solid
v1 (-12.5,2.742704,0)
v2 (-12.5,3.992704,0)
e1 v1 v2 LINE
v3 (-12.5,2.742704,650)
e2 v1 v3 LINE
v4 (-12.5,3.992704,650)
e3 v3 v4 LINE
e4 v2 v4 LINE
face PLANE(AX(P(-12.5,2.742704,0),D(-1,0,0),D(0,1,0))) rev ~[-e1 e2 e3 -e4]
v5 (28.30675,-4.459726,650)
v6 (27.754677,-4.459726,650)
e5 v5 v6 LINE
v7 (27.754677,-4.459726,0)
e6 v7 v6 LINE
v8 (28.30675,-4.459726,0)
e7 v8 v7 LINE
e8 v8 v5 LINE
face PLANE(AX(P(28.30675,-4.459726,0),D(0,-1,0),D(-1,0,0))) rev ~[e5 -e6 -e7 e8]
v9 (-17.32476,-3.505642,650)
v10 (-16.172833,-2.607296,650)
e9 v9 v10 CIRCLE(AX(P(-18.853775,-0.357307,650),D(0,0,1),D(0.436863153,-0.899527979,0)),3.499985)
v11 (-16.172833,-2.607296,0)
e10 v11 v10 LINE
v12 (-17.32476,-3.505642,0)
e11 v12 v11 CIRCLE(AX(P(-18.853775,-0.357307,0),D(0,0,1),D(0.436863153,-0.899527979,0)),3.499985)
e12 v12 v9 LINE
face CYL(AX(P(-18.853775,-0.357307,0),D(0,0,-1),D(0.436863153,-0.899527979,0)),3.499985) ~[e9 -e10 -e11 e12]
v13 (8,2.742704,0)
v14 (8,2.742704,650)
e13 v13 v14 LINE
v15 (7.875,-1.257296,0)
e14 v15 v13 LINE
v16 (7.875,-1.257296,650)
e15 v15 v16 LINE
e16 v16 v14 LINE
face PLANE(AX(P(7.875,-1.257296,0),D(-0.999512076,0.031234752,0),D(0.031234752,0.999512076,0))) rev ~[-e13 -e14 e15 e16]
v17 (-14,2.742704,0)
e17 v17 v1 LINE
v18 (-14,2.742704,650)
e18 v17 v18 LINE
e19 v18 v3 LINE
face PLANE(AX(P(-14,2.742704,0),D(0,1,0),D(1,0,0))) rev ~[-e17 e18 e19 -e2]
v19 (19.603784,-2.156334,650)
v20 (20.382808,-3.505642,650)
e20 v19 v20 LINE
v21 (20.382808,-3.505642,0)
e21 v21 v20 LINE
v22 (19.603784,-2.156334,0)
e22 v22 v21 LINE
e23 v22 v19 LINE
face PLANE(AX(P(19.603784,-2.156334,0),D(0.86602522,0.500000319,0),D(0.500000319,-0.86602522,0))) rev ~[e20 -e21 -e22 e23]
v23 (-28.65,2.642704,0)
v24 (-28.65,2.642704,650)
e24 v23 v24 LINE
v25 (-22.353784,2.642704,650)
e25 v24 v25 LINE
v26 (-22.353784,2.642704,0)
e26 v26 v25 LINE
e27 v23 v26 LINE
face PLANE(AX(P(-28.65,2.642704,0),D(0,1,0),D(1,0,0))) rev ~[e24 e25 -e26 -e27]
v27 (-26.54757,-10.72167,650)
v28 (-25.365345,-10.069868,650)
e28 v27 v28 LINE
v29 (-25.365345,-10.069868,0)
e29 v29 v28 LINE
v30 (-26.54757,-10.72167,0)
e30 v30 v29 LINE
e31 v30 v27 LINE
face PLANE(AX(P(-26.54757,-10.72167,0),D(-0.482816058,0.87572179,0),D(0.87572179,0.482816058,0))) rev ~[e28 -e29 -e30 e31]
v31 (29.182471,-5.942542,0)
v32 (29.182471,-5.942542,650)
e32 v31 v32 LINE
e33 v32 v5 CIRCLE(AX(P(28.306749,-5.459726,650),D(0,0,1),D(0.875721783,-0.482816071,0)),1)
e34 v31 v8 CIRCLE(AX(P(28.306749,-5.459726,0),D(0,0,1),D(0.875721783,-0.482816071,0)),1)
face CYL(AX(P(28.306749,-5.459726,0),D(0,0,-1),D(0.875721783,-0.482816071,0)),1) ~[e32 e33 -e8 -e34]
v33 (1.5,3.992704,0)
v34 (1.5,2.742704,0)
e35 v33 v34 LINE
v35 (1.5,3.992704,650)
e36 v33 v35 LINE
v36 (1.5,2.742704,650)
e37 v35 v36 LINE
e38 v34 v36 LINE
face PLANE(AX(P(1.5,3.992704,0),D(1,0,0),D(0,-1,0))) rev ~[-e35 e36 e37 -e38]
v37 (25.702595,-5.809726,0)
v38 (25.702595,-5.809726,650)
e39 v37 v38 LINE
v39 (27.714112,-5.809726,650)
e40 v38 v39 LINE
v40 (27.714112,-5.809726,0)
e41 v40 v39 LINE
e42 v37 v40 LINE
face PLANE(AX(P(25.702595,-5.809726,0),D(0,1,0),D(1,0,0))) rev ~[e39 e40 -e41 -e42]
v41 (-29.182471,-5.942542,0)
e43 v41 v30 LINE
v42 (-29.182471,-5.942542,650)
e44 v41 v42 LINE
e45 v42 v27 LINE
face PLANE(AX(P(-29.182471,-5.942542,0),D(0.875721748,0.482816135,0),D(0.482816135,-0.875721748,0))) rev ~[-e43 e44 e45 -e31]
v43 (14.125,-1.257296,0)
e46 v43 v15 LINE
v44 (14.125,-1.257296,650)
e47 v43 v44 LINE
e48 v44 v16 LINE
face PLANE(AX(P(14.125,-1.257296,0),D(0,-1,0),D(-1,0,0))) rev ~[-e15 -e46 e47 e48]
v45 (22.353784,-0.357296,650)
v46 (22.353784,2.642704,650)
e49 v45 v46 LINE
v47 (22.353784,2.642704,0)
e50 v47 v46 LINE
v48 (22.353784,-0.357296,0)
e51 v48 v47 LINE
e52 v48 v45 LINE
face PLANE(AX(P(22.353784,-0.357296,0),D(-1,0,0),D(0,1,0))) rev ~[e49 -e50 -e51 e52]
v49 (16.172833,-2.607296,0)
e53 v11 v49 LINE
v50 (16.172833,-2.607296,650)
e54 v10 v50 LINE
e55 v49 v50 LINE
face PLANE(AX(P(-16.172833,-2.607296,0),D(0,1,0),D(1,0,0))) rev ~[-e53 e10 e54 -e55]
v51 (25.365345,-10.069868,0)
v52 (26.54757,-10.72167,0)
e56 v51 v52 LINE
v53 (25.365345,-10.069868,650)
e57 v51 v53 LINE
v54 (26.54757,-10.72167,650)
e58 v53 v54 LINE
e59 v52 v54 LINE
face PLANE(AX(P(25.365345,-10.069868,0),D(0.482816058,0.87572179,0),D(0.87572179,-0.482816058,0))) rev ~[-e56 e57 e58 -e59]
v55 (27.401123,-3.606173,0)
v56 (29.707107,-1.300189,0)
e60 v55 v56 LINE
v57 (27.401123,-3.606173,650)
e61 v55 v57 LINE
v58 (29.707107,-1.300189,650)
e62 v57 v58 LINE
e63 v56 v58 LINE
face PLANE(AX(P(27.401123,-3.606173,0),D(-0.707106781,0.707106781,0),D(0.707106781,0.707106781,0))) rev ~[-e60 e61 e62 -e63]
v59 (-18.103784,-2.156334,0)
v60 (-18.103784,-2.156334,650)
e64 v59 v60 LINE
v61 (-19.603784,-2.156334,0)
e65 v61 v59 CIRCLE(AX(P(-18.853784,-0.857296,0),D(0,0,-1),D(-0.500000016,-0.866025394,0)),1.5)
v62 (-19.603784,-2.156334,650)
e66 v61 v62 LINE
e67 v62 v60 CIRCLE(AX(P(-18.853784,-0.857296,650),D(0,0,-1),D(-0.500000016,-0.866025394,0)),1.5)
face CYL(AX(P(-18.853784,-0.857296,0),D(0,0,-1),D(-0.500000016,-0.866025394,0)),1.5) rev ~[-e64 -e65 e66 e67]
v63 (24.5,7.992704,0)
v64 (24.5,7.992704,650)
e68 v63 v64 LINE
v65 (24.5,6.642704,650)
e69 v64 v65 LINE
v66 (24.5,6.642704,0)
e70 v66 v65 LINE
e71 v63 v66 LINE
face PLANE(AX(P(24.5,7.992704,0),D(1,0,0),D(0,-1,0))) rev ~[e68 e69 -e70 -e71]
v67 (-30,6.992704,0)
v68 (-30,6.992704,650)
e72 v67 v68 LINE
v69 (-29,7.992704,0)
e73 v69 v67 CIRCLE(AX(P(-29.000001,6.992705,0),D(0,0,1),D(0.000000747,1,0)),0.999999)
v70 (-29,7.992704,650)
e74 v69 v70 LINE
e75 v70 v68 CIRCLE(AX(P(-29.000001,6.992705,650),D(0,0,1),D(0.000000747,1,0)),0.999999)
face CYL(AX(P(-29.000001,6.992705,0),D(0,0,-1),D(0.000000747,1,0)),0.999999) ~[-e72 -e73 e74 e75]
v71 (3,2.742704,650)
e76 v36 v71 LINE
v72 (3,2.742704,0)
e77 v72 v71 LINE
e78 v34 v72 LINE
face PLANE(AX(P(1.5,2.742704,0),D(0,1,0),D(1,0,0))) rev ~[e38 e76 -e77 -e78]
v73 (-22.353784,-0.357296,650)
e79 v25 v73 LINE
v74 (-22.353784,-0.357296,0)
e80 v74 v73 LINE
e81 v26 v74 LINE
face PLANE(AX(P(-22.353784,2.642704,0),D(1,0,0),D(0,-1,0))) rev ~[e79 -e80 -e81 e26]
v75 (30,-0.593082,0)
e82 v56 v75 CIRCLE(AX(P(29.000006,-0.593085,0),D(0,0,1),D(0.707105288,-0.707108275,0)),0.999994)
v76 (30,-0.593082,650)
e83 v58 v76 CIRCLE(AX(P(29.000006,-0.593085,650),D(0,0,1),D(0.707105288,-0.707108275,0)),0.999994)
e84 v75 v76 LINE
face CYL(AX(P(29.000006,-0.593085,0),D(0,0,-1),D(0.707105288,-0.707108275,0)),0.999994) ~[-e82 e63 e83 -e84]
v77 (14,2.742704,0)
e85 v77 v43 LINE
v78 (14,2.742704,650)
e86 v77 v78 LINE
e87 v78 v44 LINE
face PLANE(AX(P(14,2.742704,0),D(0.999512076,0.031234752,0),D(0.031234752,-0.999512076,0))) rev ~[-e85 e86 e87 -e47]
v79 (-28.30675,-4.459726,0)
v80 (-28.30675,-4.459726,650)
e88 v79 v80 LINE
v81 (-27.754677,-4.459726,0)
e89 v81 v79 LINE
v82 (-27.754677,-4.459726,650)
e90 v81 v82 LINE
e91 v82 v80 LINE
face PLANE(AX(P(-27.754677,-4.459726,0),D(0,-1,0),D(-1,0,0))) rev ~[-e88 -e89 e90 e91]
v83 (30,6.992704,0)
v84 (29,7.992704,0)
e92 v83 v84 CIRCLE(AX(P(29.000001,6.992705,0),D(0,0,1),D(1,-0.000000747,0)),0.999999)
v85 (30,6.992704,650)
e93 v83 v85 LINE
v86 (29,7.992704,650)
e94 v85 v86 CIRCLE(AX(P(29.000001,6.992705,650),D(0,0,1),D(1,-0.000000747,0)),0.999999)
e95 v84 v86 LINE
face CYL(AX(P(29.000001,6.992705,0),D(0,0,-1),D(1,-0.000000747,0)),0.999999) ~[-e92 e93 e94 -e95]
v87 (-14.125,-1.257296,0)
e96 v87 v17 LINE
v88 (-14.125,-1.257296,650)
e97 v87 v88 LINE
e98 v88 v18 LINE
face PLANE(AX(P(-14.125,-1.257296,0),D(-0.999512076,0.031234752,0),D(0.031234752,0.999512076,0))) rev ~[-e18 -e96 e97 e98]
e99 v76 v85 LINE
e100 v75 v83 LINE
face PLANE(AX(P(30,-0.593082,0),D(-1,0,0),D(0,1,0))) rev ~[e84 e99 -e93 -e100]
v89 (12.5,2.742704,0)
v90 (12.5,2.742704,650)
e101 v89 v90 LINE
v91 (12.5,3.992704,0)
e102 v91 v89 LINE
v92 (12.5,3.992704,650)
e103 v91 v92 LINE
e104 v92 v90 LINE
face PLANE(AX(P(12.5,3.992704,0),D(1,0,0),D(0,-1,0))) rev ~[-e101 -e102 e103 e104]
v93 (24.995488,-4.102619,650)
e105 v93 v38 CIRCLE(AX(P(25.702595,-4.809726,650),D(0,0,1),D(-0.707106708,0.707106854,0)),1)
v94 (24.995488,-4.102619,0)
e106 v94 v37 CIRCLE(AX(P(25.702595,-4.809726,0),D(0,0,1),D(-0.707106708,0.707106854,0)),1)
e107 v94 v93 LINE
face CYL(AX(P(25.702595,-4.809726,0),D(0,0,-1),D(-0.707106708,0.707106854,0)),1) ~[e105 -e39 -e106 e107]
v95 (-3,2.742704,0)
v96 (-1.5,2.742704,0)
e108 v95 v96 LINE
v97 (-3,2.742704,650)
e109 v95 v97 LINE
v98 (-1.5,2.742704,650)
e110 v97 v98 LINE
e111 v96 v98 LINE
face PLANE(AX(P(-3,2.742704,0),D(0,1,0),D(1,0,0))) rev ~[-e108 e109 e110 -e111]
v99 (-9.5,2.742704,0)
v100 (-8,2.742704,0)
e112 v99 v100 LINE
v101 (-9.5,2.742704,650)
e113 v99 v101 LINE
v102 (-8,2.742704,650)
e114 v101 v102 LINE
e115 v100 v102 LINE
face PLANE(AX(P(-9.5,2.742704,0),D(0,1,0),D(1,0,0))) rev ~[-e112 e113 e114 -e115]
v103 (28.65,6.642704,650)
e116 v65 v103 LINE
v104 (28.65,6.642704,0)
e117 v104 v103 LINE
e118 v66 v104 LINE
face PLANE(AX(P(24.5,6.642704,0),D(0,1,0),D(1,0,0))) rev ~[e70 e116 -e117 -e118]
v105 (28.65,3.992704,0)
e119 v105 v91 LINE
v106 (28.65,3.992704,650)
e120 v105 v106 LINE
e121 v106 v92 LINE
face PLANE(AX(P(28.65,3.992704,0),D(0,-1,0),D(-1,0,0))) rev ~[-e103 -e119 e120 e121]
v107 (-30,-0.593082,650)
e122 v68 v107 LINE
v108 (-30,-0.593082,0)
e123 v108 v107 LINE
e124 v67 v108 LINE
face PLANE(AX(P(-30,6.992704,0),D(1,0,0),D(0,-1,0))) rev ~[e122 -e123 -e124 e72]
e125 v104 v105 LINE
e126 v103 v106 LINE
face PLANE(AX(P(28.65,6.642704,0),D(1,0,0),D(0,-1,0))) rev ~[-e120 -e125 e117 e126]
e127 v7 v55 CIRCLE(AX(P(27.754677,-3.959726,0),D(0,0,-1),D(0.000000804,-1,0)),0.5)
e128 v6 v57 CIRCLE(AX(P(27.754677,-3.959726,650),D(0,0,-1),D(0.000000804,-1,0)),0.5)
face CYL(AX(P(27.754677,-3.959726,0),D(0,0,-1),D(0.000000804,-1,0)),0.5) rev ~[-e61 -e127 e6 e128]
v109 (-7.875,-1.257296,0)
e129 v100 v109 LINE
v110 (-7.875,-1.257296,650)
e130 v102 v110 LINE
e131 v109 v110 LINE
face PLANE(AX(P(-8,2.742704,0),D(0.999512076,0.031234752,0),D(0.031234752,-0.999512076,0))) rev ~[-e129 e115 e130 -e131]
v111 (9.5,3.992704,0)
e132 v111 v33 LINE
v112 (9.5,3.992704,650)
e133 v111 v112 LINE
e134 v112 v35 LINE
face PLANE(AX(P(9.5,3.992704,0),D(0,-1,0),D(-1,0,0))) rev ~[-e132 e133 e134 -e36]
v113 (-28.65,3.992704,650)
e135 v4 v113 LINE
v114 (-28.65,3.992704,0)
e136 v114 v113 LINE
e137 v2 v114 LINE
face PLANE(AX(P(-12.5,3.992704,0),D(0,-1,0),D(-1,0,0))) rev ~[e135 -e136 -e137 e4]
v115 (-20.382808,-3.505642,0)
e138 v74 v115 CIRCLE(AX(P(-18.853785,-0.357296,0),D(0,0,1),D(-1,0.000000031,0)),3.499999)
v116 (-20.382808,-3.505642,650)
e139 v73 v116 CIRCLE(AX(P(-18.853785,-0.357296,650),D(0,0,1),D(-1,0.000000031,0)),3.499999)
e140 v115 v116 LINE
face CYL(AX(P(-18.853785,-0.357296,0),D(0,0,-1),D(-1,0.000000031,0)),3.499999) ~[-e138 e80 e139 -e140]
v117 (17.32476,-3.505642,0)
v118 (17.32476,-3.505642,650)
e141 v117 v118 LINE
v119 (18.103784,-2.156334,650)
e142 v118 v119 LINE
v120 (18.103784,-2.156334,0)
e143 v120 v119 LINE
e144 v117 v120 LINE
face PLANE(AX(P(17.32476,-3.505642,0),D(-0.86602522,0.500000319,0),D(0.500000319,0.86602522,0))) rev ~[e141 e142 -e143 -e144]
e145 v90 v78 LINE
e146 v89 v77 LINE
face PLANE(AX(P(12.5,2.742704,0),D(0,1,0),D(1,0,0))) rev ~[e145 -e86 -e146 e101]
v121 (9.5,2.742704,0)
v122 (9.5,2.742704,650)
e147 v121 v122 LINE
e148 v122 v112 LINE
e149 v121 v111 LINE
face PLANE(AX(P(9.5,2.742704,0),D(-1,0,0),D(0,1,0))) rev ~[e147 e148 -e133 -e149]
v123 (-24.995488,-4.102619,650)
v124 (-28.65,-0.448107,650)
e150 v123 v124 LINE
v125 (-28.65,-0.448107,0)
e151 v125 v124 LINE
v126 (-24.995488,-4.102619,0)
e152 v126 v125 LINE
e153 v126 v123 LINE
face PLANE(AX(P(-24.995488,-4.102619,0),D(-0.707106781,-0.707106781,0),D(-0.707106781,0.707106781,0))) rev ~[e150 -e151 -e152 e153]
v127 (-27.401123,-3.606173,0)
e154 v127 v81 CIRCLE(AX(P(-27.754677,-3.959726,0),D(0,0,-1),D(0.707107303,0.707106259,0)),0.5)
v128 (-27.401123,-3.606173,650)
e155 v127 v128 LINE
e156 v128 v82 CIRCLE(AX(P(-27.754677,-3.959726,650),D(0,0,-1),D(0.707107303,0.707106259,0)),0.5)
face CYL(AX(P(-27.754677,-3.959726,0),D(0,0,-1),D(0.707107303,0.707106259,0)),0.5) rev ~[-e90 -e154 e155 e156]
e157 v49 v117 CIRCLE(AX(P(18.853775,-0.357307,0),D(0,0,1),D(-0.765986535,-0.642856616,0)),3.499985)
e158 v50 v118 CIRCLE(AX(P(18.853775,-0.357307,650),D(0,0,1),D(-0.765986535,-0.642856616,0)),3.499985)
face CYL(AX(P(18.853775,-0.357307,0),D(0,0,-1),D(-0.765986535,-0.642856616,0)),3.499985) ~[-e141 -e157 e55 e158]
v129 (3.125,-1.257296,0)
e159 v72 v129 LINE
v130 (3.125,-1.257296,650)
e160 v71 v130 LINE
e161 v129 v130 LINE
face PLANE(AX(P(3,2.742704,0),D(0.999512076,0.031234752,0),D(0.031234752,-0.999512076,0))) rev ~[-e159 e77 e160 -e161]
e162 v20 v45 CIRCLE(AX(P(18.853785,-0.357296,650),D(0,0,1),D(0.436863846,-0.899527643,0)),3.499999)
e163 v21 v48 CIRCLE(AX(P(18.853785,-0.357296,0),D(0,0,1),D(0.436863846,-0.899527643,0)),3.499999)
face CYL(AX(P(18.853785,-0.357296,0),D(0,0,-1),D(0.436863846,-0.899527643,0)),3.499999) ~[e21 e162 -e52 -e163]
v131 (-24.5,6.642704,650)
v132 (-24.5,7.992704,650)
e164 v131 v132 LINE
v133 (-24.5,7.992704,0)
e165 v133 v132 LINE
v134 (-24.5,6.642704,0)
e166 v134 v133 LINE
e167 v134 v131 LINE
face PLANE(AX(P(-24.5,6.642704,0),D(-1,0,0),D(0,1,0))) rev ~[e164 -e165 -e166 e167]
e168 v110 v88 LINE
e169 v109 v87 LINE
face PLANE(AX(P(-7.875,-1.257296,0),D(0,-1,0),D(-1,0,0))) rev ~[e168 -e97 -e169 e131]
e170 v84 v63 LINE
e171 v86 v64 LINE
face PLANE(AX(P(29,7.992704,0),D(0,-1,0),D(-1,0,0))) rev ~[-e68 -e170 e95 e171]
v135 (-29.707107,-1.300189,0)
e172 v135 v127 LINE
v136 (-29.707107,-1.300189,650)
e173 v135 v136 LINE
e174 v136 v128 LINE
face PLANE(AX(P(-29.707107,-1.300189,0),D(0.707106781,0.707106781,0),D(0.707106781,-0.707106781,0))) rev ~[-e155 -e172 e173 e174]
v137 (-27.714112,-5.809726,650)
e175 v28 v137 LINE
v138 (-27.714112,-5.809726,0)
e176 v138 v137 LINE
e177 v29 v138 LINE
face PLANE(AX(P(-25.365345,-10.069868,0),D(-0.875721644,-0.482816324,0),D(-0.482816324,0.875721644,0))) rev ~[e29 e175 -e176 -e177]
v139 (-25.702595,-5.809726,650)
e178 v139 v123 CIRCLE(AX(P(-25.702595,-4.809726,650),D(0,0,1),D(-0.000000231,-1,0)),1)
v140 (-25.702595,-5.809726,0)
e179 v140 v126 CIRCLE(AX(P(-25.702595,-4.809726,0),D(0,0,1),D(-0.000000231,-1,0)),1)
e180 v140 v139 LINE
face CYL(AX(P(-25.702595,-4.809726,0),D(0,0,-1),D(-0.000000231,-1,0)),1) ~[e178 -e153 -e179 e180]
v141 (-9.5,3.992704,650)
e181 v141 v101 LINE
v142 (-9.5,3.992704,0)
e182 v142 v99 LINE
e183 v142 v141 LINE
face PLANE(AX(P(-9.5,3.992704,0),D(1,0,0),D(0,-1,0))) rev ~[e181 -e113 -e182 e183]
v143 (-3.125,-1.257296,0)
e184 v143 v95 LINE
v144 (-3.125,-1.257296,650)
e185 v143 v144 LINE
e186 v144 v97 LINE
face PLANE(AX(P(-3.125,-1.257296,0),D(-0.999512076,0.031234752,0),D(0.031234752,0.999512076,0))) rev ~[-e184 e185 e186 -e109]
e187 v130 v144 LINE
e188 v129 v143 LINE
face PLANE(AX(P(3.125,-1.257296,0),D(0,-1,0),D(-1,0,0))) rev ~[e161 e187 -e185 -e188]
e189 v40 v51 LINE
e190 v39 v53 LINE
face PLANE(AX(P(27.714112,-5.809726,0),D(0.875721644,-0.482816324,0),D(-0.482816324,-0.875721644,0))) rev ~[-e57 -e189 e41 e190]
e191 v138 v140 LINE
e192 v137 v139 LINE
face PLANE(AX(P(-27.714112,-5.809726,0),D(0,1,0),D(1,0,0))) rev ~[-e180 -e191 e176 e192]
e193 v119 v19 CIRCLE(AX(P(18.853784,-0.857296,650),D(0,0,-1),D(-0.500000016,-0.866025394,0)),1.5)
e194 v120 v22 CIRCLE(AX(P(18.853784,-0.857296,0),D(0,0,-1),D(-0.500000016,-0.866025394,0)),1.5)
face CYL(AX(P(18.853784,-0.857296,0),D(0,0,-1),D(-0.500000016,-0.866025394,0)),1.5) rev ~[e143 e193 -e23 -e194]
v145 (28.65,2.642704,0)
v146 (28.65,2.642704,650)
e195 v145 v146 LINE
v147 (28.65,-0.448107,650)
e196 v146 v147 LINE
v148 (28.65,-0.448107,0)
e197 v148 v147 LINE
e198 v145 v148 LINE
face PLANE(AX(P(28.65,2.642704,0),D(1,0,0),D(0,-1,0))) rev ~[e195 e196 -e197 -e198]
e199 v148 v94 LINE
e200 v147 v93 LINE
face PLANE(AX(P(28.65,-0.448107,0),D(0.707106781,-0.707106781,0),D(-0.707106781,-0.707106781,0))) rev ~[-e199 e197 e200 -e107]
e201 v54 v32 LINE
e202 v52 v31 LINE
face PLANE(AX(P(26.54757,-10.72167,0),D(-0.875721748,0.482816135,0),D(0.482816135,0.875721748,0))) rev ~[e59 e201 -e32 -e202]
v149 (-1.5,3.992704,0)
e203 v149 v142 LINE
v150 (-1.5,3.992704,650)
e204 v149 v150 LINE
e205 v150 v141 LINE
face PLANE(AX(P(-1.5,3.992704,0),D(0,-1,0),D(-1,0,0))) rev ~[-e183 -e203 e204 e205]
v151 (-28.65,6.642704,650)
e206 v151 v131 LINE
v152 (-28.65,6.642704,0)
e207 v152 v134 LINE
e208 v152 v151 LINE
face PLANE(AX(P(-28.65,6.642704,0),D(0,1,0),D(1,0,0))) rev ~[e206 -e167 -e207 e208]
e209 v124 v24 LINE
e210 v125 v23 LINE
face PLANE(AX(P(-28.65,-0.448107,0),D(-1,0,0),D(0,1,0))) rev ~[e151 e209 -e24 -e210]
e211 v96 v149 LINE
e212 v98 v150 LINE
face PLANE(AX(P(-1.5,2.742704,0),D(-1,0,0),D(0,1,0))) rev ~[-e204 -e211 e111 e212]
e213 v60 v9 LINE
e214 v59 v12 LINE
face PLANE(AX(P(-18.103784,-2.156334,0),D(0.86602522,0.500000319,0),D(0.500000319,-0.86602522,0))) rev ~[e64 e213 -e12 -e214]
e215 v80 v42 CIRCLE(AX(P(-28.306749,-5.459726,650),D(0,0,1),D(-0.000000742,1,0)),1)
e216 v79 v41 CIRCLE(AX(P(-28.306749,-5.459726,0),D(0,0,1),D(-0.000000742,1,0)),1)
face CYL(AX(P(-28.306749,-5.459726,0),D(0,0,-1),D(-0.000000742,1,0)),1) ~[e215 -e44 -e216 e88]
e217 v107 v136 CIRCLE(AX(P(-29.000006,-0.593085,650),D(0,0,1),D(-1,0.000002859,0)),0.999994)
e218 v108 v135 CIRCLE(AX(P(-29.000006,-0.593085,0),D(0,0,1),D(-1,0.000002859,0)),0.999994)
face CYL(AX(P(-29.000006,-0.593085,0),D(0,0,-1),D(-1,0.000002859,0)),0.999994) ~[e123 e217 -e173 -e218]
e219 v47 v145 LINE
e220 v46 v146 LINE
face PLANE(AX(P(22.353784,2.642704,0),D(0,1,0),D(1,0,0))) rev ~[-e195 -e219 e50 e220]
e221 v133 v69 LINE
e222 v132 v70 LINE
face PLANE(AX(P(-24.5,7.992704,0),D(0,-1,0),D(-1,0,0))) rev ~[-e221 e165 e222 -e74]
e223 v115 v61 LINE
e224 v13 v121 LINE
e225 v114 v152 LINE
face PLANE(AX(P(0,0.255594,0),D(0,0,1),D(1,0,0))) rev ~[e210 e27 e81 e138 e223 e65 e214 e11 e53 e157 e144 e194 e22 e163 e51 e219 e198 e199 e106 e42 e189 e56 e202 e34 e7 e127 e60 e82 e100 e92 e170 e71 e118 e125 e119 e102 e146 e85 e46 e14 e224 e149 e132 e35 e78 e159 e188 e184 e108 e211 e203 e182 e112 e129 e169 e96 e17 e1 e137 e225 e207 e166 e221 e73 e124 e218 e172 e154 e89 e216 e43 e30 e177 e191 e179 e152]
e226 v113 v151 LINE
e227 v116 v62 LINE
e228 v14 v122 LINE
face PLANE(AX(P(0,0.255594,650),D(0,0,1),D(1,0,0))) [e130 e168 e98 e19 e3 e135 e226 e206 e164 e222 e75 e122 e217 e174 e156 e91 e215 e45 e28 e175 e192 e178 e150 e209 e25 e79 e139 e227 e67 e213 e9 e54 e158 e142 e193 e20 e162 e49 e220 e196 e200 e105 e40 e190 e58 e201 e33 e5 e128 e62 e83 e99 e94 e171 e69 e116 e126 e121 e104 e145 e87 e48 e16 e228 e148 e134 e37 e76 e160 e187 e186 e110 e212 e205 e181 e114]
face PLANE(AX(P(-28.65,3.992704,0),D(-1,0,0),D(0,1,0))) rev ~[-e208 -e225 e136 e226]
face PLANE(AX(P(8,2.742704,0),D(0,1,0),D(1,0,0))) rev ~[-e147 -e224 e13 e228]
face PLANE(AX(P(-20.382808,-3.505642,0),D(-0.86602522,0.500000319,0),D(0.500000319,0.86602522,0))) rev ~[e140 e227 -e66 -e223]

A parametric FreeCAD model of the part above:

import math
import FreeCAD as App
import Part
import Sketcher

doc = App.newDocument("Part")
params = doc.addObject("Spreadsheet::Sheet", "Params")
for row, (alias, value) in enumerate([
    ("sketch1_radius", "1 mm"),
    ("sketch1_radius2", "1 mm"),
    ("sketch1_radius3", "0.999999 mm"),
    ("sketch1_radius4", "0.999999 mm"),
    ("sketch1_radius5", "1 mm"),
    ("pad1_length", "650 mm"),
], start=1):
    params.set(f"A{row}", alias)
    params.set(f"B{row}", "=" + value)
    params.setAlias(f"B{row}", alias)

body = doc.addObject("PartDesign::Body", "Body")

# Sketch on XY plane
sketch1 = doc.addObject("Sketcher::SketchObject", "Sketch")
body.addObject(sketch1)
sketch1.AttachmentSupport = (doc.XY_Plane, [""])
sketch1.MapMode = "FlatFace"
sketch1.addGeometry(Part.LineSegment(App.Vector(-16.172833, -2.607296, 0), App.Vector(16.172833, -2.607296, 0)), False)
sketch1.addGeometry(Part.ArcOfCircle(Part.Circle(App.Vector(18.853775, -0.357307, 0), App.Vector(0, 0, 1), 3.499985), math.radians(-139.994839), math.radians(-115.903909)), False)
sketch1.addGeometry(Part.LineSegment(App.Vector(17.32476, -3.505642, 0), App.Vector(18.103784, -2.156334, 0)), False)
sketch1.addGeometry(Part.ArcOfCircle(Part.Circle(App.Vector(18.853784, -0.857296, 0), App.Vector(0, 0, 1), 1.5), math.radians(-59.999999), math.radians(239.999999)), False)
sketch1.addGeometry(Part.LineSegment(App.Vector(19.603784, -2.156334, 0), App.Vector(20.382808, -3.505642, 0)), False)
sketch1.addGeometry(Part.ArcOfCircle(Part.Circle(App.Vector(18.853785, -0.357296, 0), App.Vector(0, 0, 1), 3.499999), math.radians(-64.096047), math.radians(0.000002)), False)
sketch1.addGeometry(Part.LineSegment(App.Vector(22.353784, -0.357296, 0), App.Vector(22.353784, 2.642704, 0)), False)
sketch1.addGeometry(Part.LineSegment(App.Vector(22.353784, 2.642704, 0), App.Vector(28.65, 2.642704, 0)), False)
sketch1.addGeometry(Part.LineSegment(App.Vector(28.65, 2.642704, 0), App.Vector(28.65, -0.448107, 0)), False)
sketch1.addGeometry(Part.LineSegment(App.Vector(28.65, -0.448107, 0), App.Vector(24.995488, -4.102619, 0)), False)
sketch1.addGeometry(Part.ArcOfCircle(Part.Circle(App.Vector(25.702595, -4.809726, 0), App.Vector(0, 0, 1), 1), math.radians(134.999994), math.radians(270.000013)), False)
sketch1.addGeometry(Part.LineSegment(App.Vector(25.702595, -5.809726, 0), App.Vector(27.714112, -5.809726, 0)), False)
sketch1.addGeometry(Part.LineSegment(App.Vector(27.714112, -5.809726, 0), App.Vector(25.365345, -10.069868, 0)), False)
sketch1.addGeometry(Part.LineSegment(App.Vector(25.365345, -10.069868, 0), App.Vector(26.54757, -10.72167, 0)), False)
sketch1.addGeometry(Part.LineSegment(App.Vector(26.54757, -10.72167, 0), App.Vector(29.182471, -5.942542, 0)), False)
sketch1.addGeometry(Part.ArcOfCircle(Part.Circle(App.Vector(28.306749, -5.459726, 0), App.Vector(0, 0, 1), 1), math.radians(-28.869486), math.radians(89.999957)), False)
sketch1.addGeometry(Part.LineSegment(App.Vector(28.30675, -4.459726, 0), App.Vector(27.754677, -4.459726, 0)), False)
sketch1.addGeometry(Part.ArcOfCircle(Part.Circle(App.Vector(27.754677, -3.959726, 0), App.Vector(0, 0, 1), 0.5), math.radians(135.000042), math.radians(270.000046)), False)
sketch1.addGeometry(Part.LineSegment(App.Vector(27.401123, -3.606173, 0), App.Vector(29.707107, -1.300189, 0)), False)
sketch1.addGeometry(Part.ArcOfCircle(Part.Circle(App.Vector(29.000006, -0.593085, 0), App.Vector(0, 0, 1), 0.999994), math.radians(-45.000121), math.radians(0.000164)), False)
sketch1.addGeometry(Part.LineSegment(App.Vector(30, -0.593082, 0), App.Vector(30, 6.992704, 0)), False)
sketch1.addGeometry(Part.ArcOfCircle(Part.Circle(App.Vector(29.000001, 6.992705, 0), App.Vector(0, 0, 1), 0.999999), math.radians(-0.000043), math.radians(90.000043)), False)
sketch1.addGeometry(Part.LineSegment(App.Vector(29, 7.992704, 0), App.Vector(24.5, 7.992704, 0)), False)
sketch1.addGeometry(Part.LineSegment(App.Vector(24.5, 7.992704, 0), App.Vector(24.5, 6.642704, 0)), False)
sketch1.addGeometry(Part.LineSegment(App.Vector(24.5, 6.642704, 0), App.Vector(28.65, 6.642704, 0)), False)
sketch1.addGeometry(Part.LineSegment(App.Vector(28.65, 6.642704, 0), App.Vector(28.65, 3.992704, 0)), False)
sketch1.addGeometry(Part.LineSegment(App.Vector(28.65, 3.992704, 0), App.Vector(12.5, 3.992704, 0)), False)
sketch1.addGeometry(Part.LineSegment(App.Vector(12.5, 3.992704, 0), App.Vector(12.5, 2.742704, 0)), False)
sketch1.addGeometry(Part.LineSegment(App.Vector(12.5, 2.742704, 0), App.Vector(14, 2.742704, 0)), False)
sketch1.addGeometry(Part.LineSegment(App.Vector(14, 2.742704, 0), App.Vector(14.125, -1.257296, 0)), False)
sketch1.addGeometry(Part.LineSegment(App.Vector(14.125, -1.257296, 0), App.Vector(7.875, -1.257296, 0)), False)
sketch1.addGeometry(Part.LineSegment(App.Vector(7.875, -1.257296, 0), App.Vector(8, 2.742704, 0)), False)
sketch1.addGeometry(Part.LineSegment(App.Vector(8, 2.742704, 0), App.Vector(9.5, 2.742704, 0)), False)
sketch1.addGeometry(Part.LineSegment(App.Vector(9.5, 2.742704, 0), App.Vector(9.5, 3.992704, 0)), False)
sketch1.addGeometry(Part.LineSegment(App.Vector(9.5, 3.992704, 0), App.Vector(1.5, 3.992704, 0)), False)
sketch1.addGeometry(Part.LineSegment(App.Vector(1.5, 3.992704, 0), App.Vector(1.5, 2.742704, 0)), False)
sketch1.addGeometry(Part.LineSegment(App.Vector(1.5, 2.742704, 0), App.Vector(3, 2.742704, 0)), False)
sketch1.addGeometry(Part.LineSegment(App.Vector(3, 2.742704, 0), App.Vector(3.125, -1.257296, 0)), False)
sketch1.addGeometry(Part.LineSegment(App.Vector(3.125, -1.257296, 0), App.Vector(-3.125, -1.257296, 0)), False)
sketch1.addGeometry(Part.LineSegment(App.Vector(-3.125, -1.257296, 0), App.Vector(-3, 2.742704, 0)), False)
sketch1.addGeometry(Part.LineSegment(App.Vector(-3, 2.742704, 0), App.Vector(-1.5, 2.742704, 0)), False)
sketch1.addGeometry(Part.LineSegment(App.Vector(-1.5, 2.742704, 0), App.Vector(-1.5, 3.992704, 0)), False)
sketch1.addGeometry(Part.LineSegment(App.Vector(-1.5, 3.992704, 0), App.Vector(-9.5, 3.992704, 0)), False)
sketch1.addGeometry(Part.LineSegment(App.Vector(-9.5, 3.992704, 0), App.Vector(-9.5, 2.742704, 0)), False)
sketch1.addGeometry(Part.LineSegment(App.Vector(-9.5, 2.742704, 0), App.Vector(-8, 2.742704, 0)), False)
sketch1.addGeometry(Part.LineSegment(App.Vector(-8, 2.742704, 0), App.Vector(-7.875, -1.257296, 0)), False)
sketch1.addGeometry(Part.LineSegment(App.Vector(-7.875, -1.257296, 0), App.Vector(-14.125, -1.257296, 0)), False)
sketch1.addGeometry(Part.LineSegment(App.Vector(-14.125, -1.257296, 0), App.Vector(-14, 2.742704, 0)), False)
sketch1.addGeometry(Part.LineSegment(App.Vector(-14, 2.742704, 0), App.Vector(-12.5, 2.742704, 0)), False)
sketch1.addGeometry(Part.LineSegment(App.Vector(-12.5, 2.742704, 0), App.Vector(-12.5, 3.992704, 0)), False)
sketch1.addGeometry(Part.LineSegment(App.Vector(-12.5, 3.992704, 0), App.Vector(-28.65, 3.992704, 0)), False)
sketch1.addGeometry(Part.LineSegment(App.Vector(-28.65, 3.992704, 0), App.Vector(-28.65, 6.642704, 0)), False)
sketch1.addGeometry(Part.LineSegment(App.Vector(-28.65, 6.642704, 0), App.Vector(-24.5, 6.642704, 0)), False)
sketch1.addGeometry(Part.LineSegment(App.Vector(-24.5, 6.642704, 0), App.Vector(-24.5, 7.992704, 0)), False)
sketch1.addGeometry(Part.LineSegment(App.Vector(-24.5, 7.992704, 0), App.Vector(-29, 7.992704, 0)), False)
sketch1.addGeometry(Part.ArcOfCircle(Part.Circle(App.Vector(-29.000001, 6.992705, 0), App.Vector(0, 0, 1), 0.999999), math.radians(89.999957), math.radians(180.000043)), False)
sketch1.addGeometry(Part.LineSegment(App.Vector(-30, 6.992704, 0), App.Vector(-30, -0.593082, 0)), False)
sketch1.addGeometry(Part.ArcOfCircle(Part.Circle(App.Vector(-29.000006, -0.593085, 0), App.Vector(0, 0, 1), 0.999994), math.radians(179.999836), math.radians(225.000121)), False)
sketch1.addGeometry(Part.LineSegment(App.Vector(-29.707107, -1.300189, 0), App.Vector(-27.401123, -3.606173, 0)), False)
sketch1.addGeometry(Part.ArcOfCircle(Part.Circle(App.Vector(-27.754677, -3.959726, 0), App.Vector(0, 0, 1), 0.5), math.radians(-90.000046), math.radians(44.999958)), False)
sketch1.addGeometry(Part.LineSegment(App.Vector(-27.754677, -4.459726, 0), App.Vector(-28.30675, -4.459726, 0)), False)
sketch1.addGeometry(Part.ArcOfCircle(Part.Circle(App.Vector(-28.306749, -5.459726, 0), App.Vector(0, 0, 1), 1), math.radians(90.000043), math.radians(208.869486)), False)
sketch1.addGeometry(Part.LineSegment(App.Vector(-29.182471, -5.942542, 0), App.Vector(-26.54757, -10.72167, 0)), False)
sketch1.addGeometry(Part.LineSegment(App.Vector(-26.54757, -10.72167, 0), App.Vector(-25.365345, -10.069868, 0)), False)
sketch1.addGeometry(Part.LineSegment(App.Vector(-25.365345, -10.069868, 0), App.Vector(-27.714112, -5.809726, 0)), False)
sketch1.addGeometry(Part.LineSegment(App.Vector(-27.714112, -5.809726, 0), App.Vector(-25.702595, -5.809726, 0)), False)
sketch1.addGeometry(Part.ArcOfCircle(Part.Circle(App.Vector(-25.702595, -4.809726, 0), App.Vector(0, 0, 1), 1), math.radians(-90.000013), math.radians(45.000006)), False)
sketch1.addGeometry(Part.LineSegment(App.Vector(-24.995488, -4.102619, 0), App.Vector(-28.65, -0.448107, 0)), False)
sketch1.addGeometry(Part.LineSegment(App.Vector(-28.65, -0.448107, 0), App.Vector(-28.65, 2.642704, 0)), False)
sketch1.addGeometry(Part.LineSegment(App.Vector(-28.65, 2.642704, 0), App.Vector(-22.353784, 2.642704, 0)), False)
sketch1.addGeometry(Part.LineSegment(App.Vector(-22.353784, 2.642704, 0), App.Vector(-22.353784, -0.357296, 0)), False)
sketch1.addGeometry(Part.ArcOfCircle(Part.Circle(App.Vector(-18.853785, -0.357296, 0), App.Vector(0, 0, 1), 3.499999), math.radians(179.999998), math.radians(244.096047)), False)
sketch1.addGeometry(Part.LineSegment(App.Vector(-20.382808, -3.505642, 0), App.Vector(-19.603784, -2.156334, 0)), False)
sketch1.addGeometry(Part.ArcOfCircle(Part.Circle(App.Vector(-18.853784, -0.857296, 0), App.Vector(0, 0, 1), 1.5), math.radians(-59.999999), math.radians(239.999999)), False)
sketch1.addGeometry(Part.LineSegment(App.Vector(-18.103784, -2.156334, 0), App.Vector(-17.32476, -3.505642, 0)), False)
sketch1.addGeometry(Part.ArcOfCircle(Part.Circle(App.Vector(-18.853775, -0.357307, 0), App.Vector(0, 0, 1), 3.499985), math.radians(-64.096091), math.radians(-40.005161)), False)
sketch1.addConstraint(Sketcher.Constraint("Coincident", 0, 2, 1, 1))
sketch1.addConstraint(Sketcher.Constraint("Coincident", 1, 2, 2, 1))
sketch1.addConstraint(Sketcher.Constraint("Coincident", 2, 2, 3, 2))
sketch1.addConstraint(Sketcher.Constraint("Coincident", 3, 1, 4, 1))
sketch1.addConstraint(Sketcher.Constraint("Coincident", 4, 2, 5, 1))
sketch1.addConstraint(Sketcher.Constraint("Coincident", 5, 2, 6, 1))
sketch1.addConstraint(Sketcher.Constraint("Coincident", 6, 2, 7, 1))
sketch1.addConstraint(Sketcher.Constraint("Coincident", 7, 2, 8, 1))
sketch1.addConstraint(Sketcher.Constraint("Coincident", 8, 2, 9, 1))
sketch1.addConstraint(Sketcher.Constraint("Coincident", 9, 2, 10, 1))
sketch1.addConstraint(Sketcher.Constraint("Coincident", 10, 2, 11, 1))
sketch1.addConstraint(Sketcher.Constraint("Coincident", 11, 2, 12, 1))
sketch1.addConstraint(Sketcher.Constraint("Coincident", 12, 2, 13, 1))
sketch1.addConstraint(Sketcher.Constraint("Coincident", 13, 2, 14, 1))
sketch1.addConstraint(Sketcher.Constraint("Coincident", 14, 2, 15, 1))
sketch1.addConstraint(Sketcher.Constraint("Coincident", 15, 2, 16, 1))
sketch1.addConstraint(Sketcher.Constraint("Coincident", 16, 2, 17, 2))
sketch1.addConstraint(Sketcher.Constraint("Coincident", 17, 1, 18, 1))
sketch1.addConstraint(Sketcher.Constraint("Coincident", 18, 2, 19, 1))
sketch1.addConstraint(Sketcher.Constraint("Coincident", 19, 2, 20, 1))
sketch1.addConstraint(Sketcher.Constraint("Coincident", 20, 2, 21, 1))
sketch1.addConstraint(Sketcher.Constraint("Coincident", 21, 2, 22, 1))
sketch1.addConstraint(Sketcher.Constraint("Coincident", 22, 2, 23, 1))
sketch1.addConstraint(Sketcher.Constraint("Coincident", 23, 2, 24, 1))
sketch1.addConstraint(Sketcher.Constraint("Coincident", 24, 2, 25, 1))
sketch1.addConstraint(Sketcher.Constraint("Coincident", 25, 2, 26, 1))
sketch1.addConstraint(Sketcher.Constraint("Coincident", 26, 2, 27, 1))
sketch1.addConstraint(Sketcher.Constraint("Coincident", 27, 2, 28, 1))
sketch1.addConstraint(Sketcher.Constraint("Coincident", 28, 2, 29, 1))
sketch1.addConstraint(Sketcher.Constraint("Coincident", 29, 2, 30, 1))
sketch1.addConstraint(Sketcher.Constraint("Coincident", 30, 2, 31, 1))
sketch1.addConstraint(Sketcher.Constraint("Coincident", 31, 2, 32, 1))
sketch1.addConstraint(Sketcher.Constraint("Coincident", 32, 2, 33, 1))
sketch1.addConstraint(Sketcher.Constraint("Coincident", 33, 2, 34, 1))
sketch1.addConstraint(Sketcher.Constraint("Coincident", 34, 2, 35, 1))
sketch1.addConstraint(Sketcher.Constraint("Coincident", 35, 2, 36, 1))
sketch1.addConstraint(Sketcher.Constraint("Coincident", 36, 2, 37, 1))
sketch1.addConstraint(Sketcher.Constraint("Coincident", 37, 2, 38, 1))
sketch1.addConstraint(Sketcher.Constraint("Coincident", 38, 2, 39, 1))
sketch1.addConstraint(Sketcher.Constraint("Coincident", 39, 2, 40, 1))
sketch1.addConstraint(Sketcher.Constraint("Coincident", 40, 2, 41, 1))
sketch1.addConstraint(Sketcher.Constraint("Coincident", 41, 2, 42, 1))
sketch1.addConstraint(Sketcher.Constraint("Coincident", 42, 2, 43, 1))
sketch1.addConstraint(Sketcher.Constraint("Coincident", 43, 2, 44, 1))
sketch1.addConstraint(Sketcher.Constraint("Coincident", 44, 2, 45, 1))
sketch1.addConstraint(Sketcher.Constraint("Coincident", 45, 2, 46, 1))
sketch1.addConstraint(Sketcher.Constraint("Coincident", 46, 2, 47, 1))
sketch1.addConstraint(Sketcher.Constraint("Coincident", 47, 2, 48, 1))
sketch1.addConstraint(Sketcher.Constraint("Coincident", 48, 2, 49, 1))
sketch1.addConstraint(Sketcher.Constraint("Coincident", 49, 2, 50, 1))
sketch1.addConstraint(Sketcher.Constraint("Coincident", 50, 2, 51, 1))
sketch1.addConstraint(Sketcher.Constraint("Coincident", 51, 2, 52, 1))
sketch1.addConstraint(Sketcher.Constraint("Coincident", 52, 2, 53, 1))
sketch1.addConstraint(Sketcher.Constraint("Coincident", 53, 2, 54, 1))
sketch1.addConstraint(Sketcher.Constraint("Coincident", 54, 2, 55, 1))
sketch1.addConstraint(Sketcher.Constraint("Coincident", 55, 2, 56, 1))
sketch1.addConstraint(Sketcher.Constraint("Coincident", 56, 2, 57, 1))
sketch1.addConstraint(Sketcher.Constraint("Coincident", 57, 2, 58, 1))
sketch1.addConstraint(Sketcher.Constraint("Coincident", 58, 2, 59, 2))
sketch1.addConstraint(Sketcher.Constraint("Coincident", 59, 1, 60, 1))
sketch1.addConstraint(Sketcher.Constraint("Coincident", 60, 2, 61, 1))
sketch1.addConstraint(Sketcher.Constraint("Coincident", 61, 2, 62, 1))
sketch1.addConstraint(Sketcher.Constraint("Coincident", 62, 2, 63, 1))
sketch1.addConstraint(Sketcher.Constraint("Coincident", 63, 2, 64, 1))
sketch1.addConstraint(Sketcher.Constraint("Coincident", 64, 2, 65, 1))
sketch1.addConstraint(Sketcher.Constraint("Coincident", 65, 2, 66, 1))
sketch1.addConstraint(Sketcher.Constraint("Coincident", 66, 2, 67, 1))
sketch1.addConstraint(Sketcher.Constraint("Coincident", 67, 2, 68, 1))
sketch1.addConstraint(Sketcher.Constraint("Coincident", 68, 2, 69, 1))
sketch1.addConstraint(Sketcher.Constraint("Coincident", 69, 2, 70, 1))
sketch1.addConstraint(Sketcher.Constraint("Coincident", 70, 2, 71, 1))
sketch1.addConstraint(Sketcher.Constraint("Coincident", 71, 2, 72, 1))
sketch1.addConstraint(Sketcher.Constraint("Coincident", 72, 2, 73, 2))
sketch1.addConstraint(Sketcher.Constraint("Coincident", 73, 1, 74, 1))
sketch1.addConstraint(Sketcher.Constraint("Coincident", 74, 2, 75, 1))
sketch1.addConstraint(Sketcher.Constraint("Coincident", 75, 2, 0, 1))
sketch1.addConstraint(Sketcher.Constraint("Horizontal", 0))
sketch1.addConstraint(Sketcher.Constraint("Vertical", 6))
sketch1.addConstraint(Sketcher.Constraint("Horizontal", 7))
sketch1.addConstraint(Sketcher.Constraint("Vertical", 8))
sketch1.addConstraint(Sketcher.Constraint("Horizontal", 11))
sketch1.addConstraint(Sketcher.Constraint("Horizontal", 16))
sketch1.addConstraint(Sketcher.Constraint("Vertical", 20))
sketch1.addConstraint(Sketcher.Constraint("Horizontal", 22))
sketch1.addConstraint(Sketcher.Constraint("Vertical", 23))
sketch1.addConstraint(Sketcher.Constraint("Horizontal", 24))
sketch1.addConstraint(Sketcher.Constraint("Vertical", 25))
sketch1.addConstraint(Sketcher.Constraint("Horizontal", 26))
sketch1.addConstraint(Sketcher.Constraint("Vertical", 27))
sketch1.addConstraint(Sketcher.Constraint("Horizontal", 28))
sketch1.addConstraint(Sketcher.Constraint("Horizontal", 30))
sketch1.addConstraint(Sketcher.Constraint("Horizontal", 32))
sketch1.addConstraint(Sketcher.Constraint("Vertical", 33))
sketch1.addConstraint(Sketcher.Constraint("Horizontal", 34))
sketch1.addConstraint(Sketcher.Constraint("Vertical", 35))
sketch1.addConstraint(Sketcher.Constraint("Horizontal", 36))
sketch1.addConstraint(Sketcher.Constraint("Horizontal", 38))
sketch1.addConstraint(Sketcher.Constraint("Horizontal", 40))
sketch1.addConstraint(Sketcher.Constraint("Vertical", 41))
sketch1.addConstraint(Sketcher.Constraint("Horizontal", 42))
sketch1.addConstraint(Sketcher.Constraint("Vertical", 43))
sketch1.addConstraint(Sketcher.Constraint("Horizontal", 44))
sketch1.addConstraint(Sketcher.Constraint("Horizontal", 46))
sketch1.addConstraint(Sketcher.Constraint("Horizontal", 48))
sketch1.addConstraint(Sketcher.Constraint("Vertical", 49))
sketch1.addConstraint(Sketcher.Constraint("Horizontal", 50))
sketch1.addConstraint(Sketcher.Constraint("Vertical", 51))
sketch1.addConstraint(Sketcher.Constraint("Horizontal", 52))
sketch1.addConstraint(Sketcher.Constraint("Vertical", 53))
sketch1.addConstraint(Sketcher.Constraint("Horizontal", 54))
sketch1.addConstraint(Sketcher.Constraint("Vertical", 56))
sketch1.addConstraint(Sketcher.Constraint("Horizontal", 60))
sketch1.addConstraint(Sketcher.Constraint("Horizontal", 65))
sketch1.addConstraint(Sketcher.Constraint("Vertical", 68))
sketch1.addConstraint(Sketcher.Constraint("Horizontal", 69))
sketch1.addConstraint(Sketcher.Constraint("Vertical", 70))
sketch1.addConstraint(Sketcher.Constraint("Radius", 10, 1.0))
sketch1.addConstraint(Sketcher.Constraint("Radius", 15, 1.0))
sketch1.addConstraint(Sketcher.Constraint("Radius", 21, 0.999999))
sketch1.addConstraint(Sketcher.Constraint("Radius", 55, 0.999999))
sketch1.addConstraint(Sketcher.Constraint("Radius", 61, 1.0))
sketch1.addConstraint(Sketcher.Constraint("Radius", 66, 1.0))
sketch1.addConstraint(Sketcher.Constraint("Radius", 3, 1.5))
sketch1.addConstraint(Sketcher.Constraint("Radius", 5, 3.499999))
sketch1.addConstraint(Sketcher.Constraint("Radius", 17, 0.5))
sketch1.addConstraint(Sketcher.Constraint("Radius", 59, 0.5))
sketch1.addConstraint(Sketcher.Constraint("Radius", 71, 3.499999))
sketch1.addConstraint(Sketcher.Constraint("Radius", 73, 1.5))
sketch1.addConstraint(Sketcher.Constraint("DistanceX", 34, 2, 34, 1, 8.0))
sketch1.addConstraint(Sketcher.Constraint("DistanceX", 42, 2, 42, 1, 8.0))
sketch1.addConstraint(Sketcher.Constraint("DistanceY", 6, 1, 6, 2, 3.0))
sketch1.addConstraint(Sketcher.Constraint("DistanceY", 70, 2, 70, 1, 3.0))
sketch1.addConstraint(Sketcher.Constraint("DistanceX", 22, 2, 22, 1, 4.5))
sketch1.addConstraint(Sketcher.Constraint("DistanceX", 28, 1, 28, 2, 1.5))
sketch1.addConstraint(Sketcher.Constraint("DistanceX", 32, 1, 32, 2, 1.5))
sketch1.addConstraint(Sketcher.Constraint("DistanceX", 36, 1, 36, 2, 1.5))
sketch1.addConstraint(Sketcher.Constraint("DistanceX", 40, 1, 40, 2, 1.5))
sketch1.addConstraint(Sketcher.Constraint("DistanceX", 44, 1, 44, 2, 1.5))
sketch1.addConstraint(Sketcher.Constraint("DistanceX", 48, 1, 48, 2, 1.5))
sketch1.addConstraint(Sketcher.Constraint("DistanceX", 54, 2, 54, 1, 4.5))
sketch1.addConstraint(Sketcher.Constraint("DistanceX", -1, 1, 21, 3, 29.000001))
sketch1.addConstraint(Sketcher.Constraint("DistanceX", 55, 3, -1, 1, 29.000001))
sketch1.addConstraint(Sketcher.Constraint("DistanceX", -1, 1, 21, 2, 29.0))
sketch1.addConstraint(Sketcher.Constraint("DistanceX", -1, 1, 28, 2, 14.0))
sketch1.addConstraint(Sketcher.Constraint("DistanceX", -1, 1, 31, 2, 8.0))
sketch1.addConstraint(Sketcher.Constraint("DistanceX", 39, 2, -1, 1, 3.0))
sketch1.addConstraint(Sketcher.Constraint("DistanceX", 47, 2, -1, 1, 14.0))
sketch1.addConstraint(Sketcher.Constraint("DistanceX", 54, 2, -1, 1, 29.0))
sketch1.addConstraint(Sketcher.Constraint("DistanceX", 24, 1, 24, 2, 4.15))
sketch1.addConstraint(Sketcher.Constraint("DistanceX", 30, 2, 30, 1, 6.25))
sketch1.addConstraint(Sketcher.Constraint("DistanceX", 38, 2, 38, 1, 6.25))
sketch1.addConstraint(Sketcher.Constraint("DistanceX", 46, 2, 46, 1, 6.25))
sketch1.addConstraint(Sketcher.Constraint("DistanceX", 50, 2, 50, 1, 16.15))
sketch1.addConstraint(Sketcher.Constraint("DistanceY", 23, 2, 23, 1, 1.35))
sketch1.addConstraint(Sketcher.Constraint("DistanceY", 25, 2, 25, 1, 2.65))
sketch1.addConstraint(Sketcher.Constraint("DistanceY", 27, 2, 27, 1, 1.25))
sketch1.addConstraint(Sketcher.Constraint("DistanceY", 33, 1, 33, 2, 1.25))
sketch1.addConstraint(Sketcher.Constraint("DistanceY", 35, 2, 35, 1, 1.25))
sketch1.addConstraint(Sketcher.Constraint("DistanceY", 41, 1, 41, 2, 1.25))
sketch1.addConstraint(Sketcher.Constraint("DistanceY", 43, 2, 43, 1, 1.25))
sketch1.addConstraint(Sketcher.Constraint("DistanceY", 49, 1, 49, 2, 1.25))
sketch1.addConstraint(Sketcher.Constraint("DistanceY", 51, 1, 51, 2, 2.65))
sketch1.addConstraint(Sketcher.Constraint("DistanceY", 53, 1, 53, 2, 1.35))
sketch1.addConstraint(Sketcher.Constraint("Distance", 13, 1.350001))
sketch1.addConstraint(Sketcher.Constraint("Distance", 63, 1.350001))
sketch1.addConstraint(Sketcher.Constraint("DistanceX", -1, 1, 7, 2, 28.65))
sketch1.addConstraint(Sketcher.Constraint("DistanceX", 67, 2, -1, 1, 28.65))
sketch1.addConstraint(Sketcher.Constraint("DistanceX", -1, 1, 29, 2, 14.125))
sketch1.addConstraint(Sketcher.Constraint("DistanceX", -1, 1, 37, 2, 3.125))
sketch1.addConstraint(Sketcher.Constraint("DistanceX", 45, 2, -1, 1, 7.875))
sketch1.addConstraint(Sketcher.Constraint("Radius", 1, 3.499985))
sketch1.addConstraint(Sketcher.Constraint("Radius", 19, 0.999994))
sketch1.addConstraint(Sketcher.Constraint("Radius", 57, 0.999994))
sketch1.addConstraint(Sketcher.Constraint("Radius", 75, 3.499985))
sketch1.addConstraint(Sketcher.Constraint("DistanceY", 8, 2, 8, 1, 3.090811))
sketch1.addConstraint(Sketcher.Constraint("DistanceY", 68, 1, 68, 2, 3.090811))
sketch1.addConstraint(Sketcher.Constraint("Distance", 9, 5.16826))
sketch1.addConstraint(Sketcher.Constraint("Distance", 12, 4.864722))
sketch1.addConstraint(Sketcher.Constraint("Distance", 14, 5.457359))
sketch1.addConstraint(Sketcher.Constraint("Distance", 62, 5.457359))
sketch1.addConstraint(Sketcher.Constraint("Distance", 64, 4.864722))
sketch1.addConstraint(Sketcher.Constraint("Distance", 67, 5.16826))
sketch1.addConstraint(Sketcher.Constraint("DistanceX", 0, 1, 0, 2, 32.345666))
sketch1.addConstraint(Sketcher.Constraint("DistanceX", 7, 1, 7, 2, 6.296216))
sketch1.addConstraint(Sketcher.Constraint("DistanceX", 11, 1, 11, 2, 2.011517))
sketch1.addConstraint(Sketcher.Constraint("DistanceX", 16, 2, 16, 1, 0.552073))
sketch1.addConstraint(Sketcher.Constraint("DistanceX", 60, 2, 60, 1, 0.552073))
sketch1.addConstraint(Sketcher.Constraint("DistanceX", 65, 1, 65, 2, 2.011517))
sketch1.addConstraint(Sketcher.Constraint("DistanceX", 69, 1, 69, 2, 6.296216))
sketch1.addConstraint(Sketcher.Constraint("DistanceY", 20, 1, 20, 2, 7.585786))
sketch1.addConstraint(Sketcher.Constraint("DistanceY", 56, 2, 56, 1, 7.585786))
sketch1.addConstraint(Sketcher.Constraint("DistanceX", -1, 1, 15, 3, 28.306749))
sketch1.addConstraint(Sketcher.Constraint("DistanceX", 61, 3, -1, 1, 28.306749))
sketch1.addConstraint(Sketcher.Constraint("DistanceX", -1, 1, 1, 2, 17.32476))
sketch1.addConstraint(Sketcher.Constraint("DistanceX", -1, 1, 4, 2, 20.382808))
sketch1.addConstraint(Sketcher.Constraint("DistanceY", 4, 2, -1, 1, 3.505642))
sketch1.addConstraint(Sketcher.Constraint("DistanceX", -1, 1, 9, 2, 24.995488))
sketch1.addConstraint(Sketcher.Constraint("DistanceY", 9, 2, -1, 1, 4.102619))
sketch1.addConstraint(Sketcher.Constraint("DistanceX", -1, 1, 11, 2, 27.714112))
sketch1.addConstraint(Sketcher.Constraint("DistanceX", -1, 1, 13, 2, 26.54757))
sketch1.addConstraint(Sketcher.Constraint("DistanceY", 13, 2, -1, 1, 10.72167))
sketch1.addConstraint(Sketcher.Constraint("DistanceX", -1, 1, 14, 2, 29.182471))
sketch1.addConstraint(Sketcher.Constraint("DistanceX", -1, 1, 15, 2, 28.30675))
sketch1.addConstraint(Sketcher.Constraint("DistanceY", 18, 2, -1, 1, 1.300189))
sketch1.addConstraint(Sketcher.Constraint("DistanceY", 19, 2, -1, 1, 0.593082))
sketch1.addConstraint(Sketcher.Constraint("DistanceY", 56, 2, -1, 1, 0.593082))
sketch1.addConstraint(Sketcher.Constraint("DistanceY", 57, 2, -1, 1, 1.300189))
sketch1.addConstraint(Sketcher.Constraint("DistanceX", 60, 2, -1, 1, 28.30675))
sketch1.addConstraint(Sketcher.Constraint("DistanceX", 61, 2, -1, 1, 29.182471))
sketch1.addConstraint(Sketcher.Constraint("DistanceY", 61, 2, -1, 1, 5.942542))
sketch1.addConstraint(Sketcher.Constraint("DistanceX", 62, 2, -1, 1, 26.54757))
sketch1.addConstraint(Sketcher.Constraint("DistanceX", 64, 2, -1, 1, 27.714112))
sketch1.addConstraint(Sketcher.Constraint("DistanceX", 66, 2, -1, 1, 24.995488))
sketch1.addConstraint(Sketcher.Constraint("DistanceY", 66, 2, -1, 1, 4.102619))
sketch1.addConstraint(Sketcher.Constraint("DistanceY", 71, 2, -1, 1, 3.505642))
sketch1.addConstraint(Sketcher.Constraint("DistanceX", 74, 2, -1, 1, 17.32476))
sketch1.addConstraint(Sketcher.Constraint("DistanceY", 74, 2, -1, 1, 3.505642))
sketch1.addConstraint(Sketcher.Constraint("Distance", 2, 1.558047))
sketch1.addConstraint(Sketcher.Constraint("Distance", 4, 1.558047))
sketch1.addConstraint(Sketcher.Constraint("Distance", 18, 3.261154))
sketch1.addConstraint(Sketcher.Constraint("Distance", 29, 4.001953))
sketch1.addConstraint(Sketcher.Constraint("Distance", 31, 4.001953))
sketch1.addConstraint(Sketcher.Constraint("Distance", 37, 4.001953))
sketch1.addConstraint(Sketcher.Constraint("Distance", 39, 4.001953))
sketch1.addConstraint(Sketcher.Constraint("Distance", 45, 4.001953))
sketch1.addConstraint(Sketcher.Constraint("Distance", 47, 4.001953))
sketch1.addConstraint(Sketcher.Constraint("Distance", 58, 3.261154))
sketch1.addConstraint(Sketcher.Constraint("Distance", 72, 1.558047))
sketch1.addConstraint(Sketcher.Constraint("Distance", 74, 1.558047))
sketch1.addConstraint(Sketcher.Constraint("DistanceX", -1, 1, 1, 3, 18.853775))
sketch1.addConstraint(Sketcher.Constraint("DistanceY", 1, 3, -1, 1, 0.357307))
sketch1.addConstraint(Sketcher.Constraint("DistanceX", -1, 1, 10, 3, 25.702595))
sketch1.addConstraint(Sketcher.Constraint("DistanceX", -1, 1, 17, 3, 27.754677))
sketch1.addConstraint(Sketcher.Constraint("DistanceY", 19, 3, -1, 1, 0.593085))
sketch1.addConstraint(Sketcher.Constraint("DistanceY", -1, 1, 21, 3, 6.992705))
sketch1.addConstraint(Sketcher.Constraint("DistanceY", 57, 3, -1, 1, 0.593085))
sketch1.addConstraint(Sketcher.Constraint("DistanceX", 59, 3, -1, 1, 27.754677))
sketch1.addConstraint(Sketcher.Constraint("DistanceX", 66, 3, -1, 1, 25.702595))
sketch1.addConstraint(Sketcher.Constraint("DistanceY", 71, 3, -1, 1, 0.357296))
sketch1.addConstraint(Sketcher.Constraint("DistanceX", 75, 3, -1, 1, 18.853775))
sketch1.addConstraint(Sketcher.Constraint("DistanceX", -1, 1, 2, 2, 18.103784))
sketch1.addConstraint(Sketcher.Constraint("DistanceX", -1, 1, 3, 1, 19.603784))
sketch1.addConstraint(Sketcher.Constraint("DistanceX", 72, 2, -1, 1, 19.603784))
sketch1.addConstraint(Sketcher.Constraint("DistanceX", 73, 1, -1, 1, 18.103784))
sketch1.setExpression("Constraints[116]", "Params.sketch1_radius")
sketch1.setExpression("Constraints[117]", "Params.sketch1_radius2")
sketch1.setExpression("Constraints[118]", "Params.sketch1_radius3")
sketch1.setExpression("Constraints[119]", "Params.sketch1_radius4")
sketch1.setExpression("Constraints[120]", "Params.sketch1_radius5")
pad1 = doc.addObject("PartDesign::Pad", "Pad")
body.addObject(pad1)
pad1.Profile = sketch1
pad1.setExpression("Length", "Params.pad1_length")

doc.recompute()
